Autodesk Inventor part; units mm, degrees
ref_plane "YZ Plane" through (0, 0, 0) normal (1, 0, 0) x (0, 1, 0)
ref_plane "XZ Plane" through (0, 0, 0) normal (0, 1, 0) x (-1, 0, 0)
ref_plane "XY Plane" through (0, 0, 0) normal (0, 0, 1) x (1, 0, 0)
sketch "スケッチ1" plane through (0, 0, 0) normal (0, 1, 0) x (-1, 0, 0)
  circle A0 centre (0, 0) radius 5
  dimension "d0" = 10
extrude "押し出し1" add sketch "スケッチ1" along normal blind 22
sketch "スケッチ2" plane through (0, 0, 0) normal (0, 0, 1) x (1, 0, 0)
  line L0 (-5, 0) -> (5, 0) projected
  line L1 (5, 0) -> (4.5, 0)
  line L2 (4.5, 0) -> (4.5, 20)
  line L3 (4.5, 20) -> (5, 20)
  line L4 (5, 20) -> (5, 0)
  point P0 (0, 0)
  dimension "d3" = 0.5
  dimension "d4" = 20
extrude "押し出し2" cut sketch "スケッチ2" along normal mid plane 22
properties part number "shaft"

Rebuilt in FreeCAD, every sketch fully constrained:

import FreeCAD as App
import Part
import Sketcher

V = App.Vector


def add_polygon(sketch, points):
    """Adds a closed chain of lines whose ends are joined by coincident constraints."""
    first, n = sketch.GeometryCount, len(points)
    for a, b in zip(points, points[1:] + points[:1]):
        sketch.addGeometry(Part.LineSegment(App.Vector(*a, 0), App.Vector(*b, 0)), False)
    for i in range(n):
        sketch.addConstraint(Sketcher.Constraint("Coincident", first + i, 2, first + (i + 1) % n, 1))

doc = App.newDocument("Part")
body = doc.addObject("PartDesign::Body", "Body")

# Sketch on XZ plane
sketch1 = body.newObject("Sketcher::SketchObject", "Sketch")
sketch1.AttachmentSupport = (doc.getObject("XZ_Plane"), [""])
sketch1.MapMode = "FlatFace"
sketch1.addGeometry(Part.Circle(V(0, 0, 0), V(0, 0, 1), 5), False)
sketch1.addConstraint([
    Sketcher.Constraint("Coincident", 0, 3, -1, 1),
    Sketcher.Constraint("Diameter", 0, 10.0),
])
pad1 = body.newObject("PartDesign::Pad", "Pad")
pad1.Profile = sketch1
pad1.Length = 22
pad1.Reversed = True

# Sketch on XY plane
sketch2 = body.newObject("Sketcher::SketchObject", "Sketch001")
sketch2.AttachmentSupport = (doc.getObject("XY_Plane"), [""])
sketch2.MapMode = "FlatFace"
add_polygon(sketch2, [(4.5, 20), (4.5, 0), (5, 0), (5, 20)])  # lines 0-3
sketch2.addConstraint([
    Sketcher.Constraint("Vertical", 0),
    Sketcher.Constraint("Horizontal", 1),
    Sketcher.Constraint("Vertical", 2),
    Sketcher.Constraint("Horizontal", 3),
    Sketcher.Constraint("PointOnObject", 0, 2, -1),
    Sketcher.Constraint("DistanceY", 0, 2, 0, 1, 20.0),
    Sketcher.Constraint("DistanceX", 1, 1, 1, 2, 0.5),
    Sketcher.Constraint("DistanceX", -1, 1, 1, 2, 5.0),
])
pocket1 = body.newObject("PartDesign::Pocket", "Pocket")
pocket1.Profile = sketch2
pocket1.Length = 22
pocket1.Midplane = True

doc.recompute()
